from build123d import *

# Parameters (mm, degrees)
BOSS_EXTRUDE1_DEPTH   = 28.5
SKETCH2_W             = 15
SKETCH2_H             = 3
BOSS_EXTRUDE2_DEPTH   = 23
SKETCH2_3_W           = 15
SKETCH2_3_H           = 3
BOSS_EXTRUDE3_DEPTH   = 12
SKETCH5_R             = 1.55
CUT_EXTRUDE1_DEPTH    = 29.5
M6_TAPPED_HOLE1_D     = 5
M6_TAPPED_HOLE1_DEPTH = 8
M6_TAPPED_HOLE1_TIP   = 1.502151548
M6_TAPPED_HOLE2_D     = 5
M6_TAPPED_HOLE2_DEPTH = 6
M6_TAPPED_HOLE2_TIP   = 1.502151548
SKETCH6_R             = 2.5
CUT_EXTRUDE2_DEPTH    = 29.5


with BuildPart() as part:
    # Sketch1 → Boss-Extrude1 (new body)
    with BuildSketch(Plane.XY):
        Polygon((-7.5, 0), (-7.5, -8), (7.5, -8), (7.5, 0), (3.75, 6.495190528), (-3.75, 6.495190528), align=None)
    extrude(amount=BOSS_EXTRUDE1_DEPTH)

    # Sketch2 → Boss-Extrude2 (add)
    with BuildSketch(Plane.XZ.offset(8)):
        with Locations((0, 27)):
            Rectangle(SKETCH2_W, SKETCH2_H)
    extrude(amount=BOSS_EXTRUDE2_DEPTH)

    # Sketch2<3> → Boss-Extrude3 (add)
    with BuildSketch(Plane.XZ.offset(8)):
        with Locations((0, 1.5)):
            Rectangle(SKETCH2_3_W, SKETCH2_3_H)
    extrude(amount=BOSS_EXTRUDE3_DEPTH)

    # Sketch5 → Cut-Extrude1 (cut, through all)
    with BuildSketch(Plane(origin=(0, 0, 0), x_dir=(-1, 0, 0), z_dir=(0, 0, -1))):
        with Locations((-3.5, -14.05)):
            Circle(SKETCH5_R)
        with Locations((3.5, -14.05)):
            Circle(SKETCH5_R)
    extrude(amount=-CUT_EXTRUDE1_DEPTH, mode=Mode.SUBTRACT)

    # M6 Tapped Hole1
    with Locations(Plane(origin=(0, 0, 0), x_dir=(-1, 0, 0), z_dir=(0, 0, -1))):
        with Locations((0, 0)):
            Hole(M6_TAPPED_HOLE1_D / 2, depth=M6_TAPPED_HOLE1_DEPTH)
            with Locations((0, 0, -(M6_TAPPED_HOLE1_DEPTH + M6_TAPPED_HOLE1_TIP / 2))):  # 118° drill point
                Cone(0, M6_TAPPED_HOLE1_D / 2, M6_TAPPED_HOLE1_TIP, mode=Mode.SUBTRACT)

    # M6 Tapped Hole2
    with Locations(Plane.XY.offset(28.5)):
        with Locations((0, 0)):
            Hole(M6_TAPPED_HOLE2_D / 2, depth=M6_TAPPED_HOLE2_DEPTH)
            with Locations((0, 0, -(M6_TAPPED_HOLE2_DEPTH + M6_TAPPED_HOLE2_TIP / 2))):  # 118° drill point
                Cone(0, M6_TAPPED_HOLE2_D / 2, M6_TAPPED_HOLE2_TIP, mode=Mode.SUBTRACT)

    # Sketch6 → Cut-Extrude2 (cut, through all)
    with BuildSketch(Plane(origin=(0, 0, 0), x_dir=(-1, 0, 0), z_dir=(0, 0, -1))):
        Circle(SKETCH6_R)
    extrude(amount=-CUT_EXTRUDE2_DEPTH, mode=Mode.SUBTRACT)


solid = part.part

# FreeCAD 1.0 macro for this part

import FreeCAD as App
import Part
import Sketcher

V = App.Vector
Q = App.Units.Quantity


def add_polygon(sketch, points):
    """Adds a closed chain of lines whose ends are joined by coincident constraints."""
    first, n = sketch.GeometryCount, len(points)
    for a, b in zip(points, points[1:] + points[:1]):
        sketch.addGeometry(Part.LineSegment(App.Vector(*a, 0), App.Vector(*b, 0)), False)
    for i in range(n):
        sketch.addConstraint(Sketcher.Constraint("Coincident", first + i, 2, first + (i + 1) % n, 1))

doc = App.newDocument("Part")
body = doc.addObject("PartDesign::Body", "Body")

# Sketch on XY plane
sketch1 = body.newObject("Sketcher::SketchObject", "Sketch")
sketch1.AttachmentSupport = (doc.getObject("XY_Plane"), [""])
sketch1.MapMode = "FlatFace"
add_polygon(sketch1, [(-8, 0), (-8, -8), (8, -8), (8, 0), (4, 6), (-4, 6)])  # lines 0-5
sketch1.addConstraint([
    Sketcher.Constraint("Vertical", 0),
    Sketcher.Constraint("Horizontal", 1),
    Sketcher.Constraint("Vertical", 2),
    Sketcher.Constraint("Horizontal", 4),
    Sketcher.Constraint("Symmetric", 2, 2, 5, 2, -1, 1),
    Sketcher.Constraint("PointOnObject", 2, 2, -1),
    Sketcher.Constraint("Equal", 3, 5),
    Sketcher.Constraint("DistanceX", 1, 1, 1, 2, 15.0),
    Sketcher.Constraint("DistanceY", 0, 2, 0, 1, 8.0),
    Sketcher.Constraint("Angle", 3, Q("120 deg")),
    Sketcher.Constraint("DistanceX", 4, 2, 4, 1, 7.5),
])
pad1 = body.newObject("PartDesign::Pad", "Pad")
pad1.Profile = sketch1
pad1.Length = 28.5

# Sketch on XZ plane
sketch2 = body.newObject("Sketcher::SketchObject", "Sketch001")
sketch2.AttachmentSupport = (doc.getObject("XZ_Plane"), [""])
sketch2.MapMode = "FlatFace"
sketch2.AttachmentOffset = App.Placement(V(0, 0, 8), App.Rotation())
add_polygon(sketch2, [(-7.5, 28.5), (-7.5, 25.5), (7.5, 25.5), (7.5, 28.5)])  # lines 0-3
sketch2.addConstraint([
    Sketcher.Constraint("Vertical", 0),
    Sketcher.Constraint("Horizontal", 1),
    Sketcher.Constraint("Vertical", 2),
    Sketcher.Constraint("Horizontal", 3),
    Sketcher.Constraint("DistanceX", 1, 1, 1, 2, 15.0),
    Sketcher.Constraint("DistanceY", 0, 2, 0, 1, 3.0),
    Sketcher.Constraint("DistanceX", 0, 2, -1, 1, 7.5),
    Sketcher.Constraint("DistanceY", -1, 1, 0, 2, 25.5),
])
pad2 = body.newObject("PartDesign::Pad", "Pad001")
pad2.Profile = sketch2
pad2.Length = 23

# Sketch on XZ plane
sketch3 = body.newObject("Sketcher::SketchObject", "Sketch002")
sketch3.AttachmentSupport = (doc.getObject("XZ_Plane"), [""])
sketch3.MapMode = "FlatFace"
sketch3.AttachmentOffset = App.Placement(V(0, 0, 8), App.Rotation())
add_polygon(sketch3, [(-7.5, 3), (-7.5, 0), (7.5, 0), (7.5, 3)])  # lines 0-3
sketch3.addConstraint([
    Sketcher.Constraint("Vertical", 0),
    Sketcher.Constraint("Horizontal", 1),
    Sketcher.Constraint("Vertical", 2),
    Sketcher.Constraint("Horizontal", 3),
    Sketcher.Constraint("Symmetric", 0, 2, 1, 2, -1, 1),
    Sketcher.Constraint("DistanceX", 1, 1, 1, 2, 15.0),
    Sketcher.Constraint("DistanceY", 0, 2, 0, 1, 3.0),
])
pad3 = body.newObject("PartDesign::Pad", "Pad002")
pad3.Profile = sketch3
pad3.Length = 12

# Sketch on XY plane
sketch4 = body.newObject("Sketcher::SketchObject", "Sketch003")
sketch4.AttachmentSupport = (doc.getObject("XY_Plane"), [""])
sketch4.MapMode = "FlatFace"
sketch4.addGeometry([
    Part.Circle(V(3.5, -14.1, 0), V(0, 0, 1), 1.6),
    Part.Circle(V(-3.5, -14.1, 0), V(0, 0, 1), 1.6),
], False)
sketch4.addConstraint([
    Sketcher.Constraint("Equal", 0, 1),
    Sketcher.Constraint("Symmetric", 0, 3, 1, 3, -2),
    Sketcher.Constraint("Diameter", 0, 3.1),
    Sketcher.Constraint("DistanceX", 1, 3, 0, 3, 7.0),
    Sketcher.Constraint("DistanceY", 0, 3, -1, 1, 14.05),
])
pocket1 = body.newObject("PartDesign::Pocket", "Pocket")
pocket1.Profile = sketch4
pocket1.Type = "ThroughAll"
pocket1.Reversed = True

# Sketch on XY plane
sketch5 = body.newObject("Sketcher::SketchObject", "Sketch004")
sketch5.AttachmentSupport = (doc.getObject("XY_Plane"), [""])
sketch5.MapMode = "FlatFace"
sketch5.addGeometry(Part.Circle(V(0, 0, 0), V(0, 0, 1), 2.5), False)
sketch5.addConstraint([
    Sketcher.Constraint("Coincident", 0, 3, -1, 1),
    Sketcher.Constraint("Diameter", 0, 5.0),
])
doc.recompute()
hole = body.newObject("PartDesign::Hole", "Hole")
hole.Profile = sketch5
hole.ThreadType = "None"
hole.Diameter = 5
hole.DepthType = "Dimension"
hole.Depth = 8
hole.DrillPoint = "Angled"
hole.DrillPointAngle = 118
hole.Reversed = True

# Sketch on XY plane
sketch6 = body.newObject("Sketcher::SketchObject", "Sketch005")
sketch6.AttachmentSupport = (doc.getObject("XY_Plane"), [""])
sketch6.MapMode = "FlatFace"
sketch6.AttachmentOffset = App.Placement(V(0, 0, 28.5), App.Rotation())
sketch6.addGeometry(Part.Circle(V(0, 0, 0), V(0, 0, 1), 2.5), False)
sketch6.addConstraint([
    Sketcher.Constraint("Coincident", 0, 3, -1, 1),
    Sketcher.Constraint("Diameter", 0, 5.0),
])
doc.recompute()
hole2 = body.newObject("PartDesign::Hole", "Hole001")
hole2.Profile = sketch6
hole2.ThreadType = "None"
hole2.Diameter = 5
hole2.DepthType = "Dimension"
hole2.Depth = 6
hole2.DrillPoint = "Angled"
hole2.DrillPointAngle = 118

# Sketch on XY plane
sketch7 = body.newObject("Sketcher::SketchObject", "Sketch006")
sketch7.AttachmentSupport = (doc.getObject("XY_Plane"), [""])
sketch7.MapMode = "FlatFace"
sketch7.addGeometry(Part.Circle(V(0, 0, 0), V(0, 0, 1), 2.5), False)
sketch7.addConstraint([
    Sketcher.Constraint("Coincident", 0, 3, -1, 1),
    Sketcher.Constraint("Diameter", 0, 5.0),
])
pocket2 = body.newObject("PartDesign::Pocket", "Pocket001")
pocket2.Profile = sketch7
pocket2.Type = "ThroughAll"
pocket2.Reversed = True

doc.recompute()
